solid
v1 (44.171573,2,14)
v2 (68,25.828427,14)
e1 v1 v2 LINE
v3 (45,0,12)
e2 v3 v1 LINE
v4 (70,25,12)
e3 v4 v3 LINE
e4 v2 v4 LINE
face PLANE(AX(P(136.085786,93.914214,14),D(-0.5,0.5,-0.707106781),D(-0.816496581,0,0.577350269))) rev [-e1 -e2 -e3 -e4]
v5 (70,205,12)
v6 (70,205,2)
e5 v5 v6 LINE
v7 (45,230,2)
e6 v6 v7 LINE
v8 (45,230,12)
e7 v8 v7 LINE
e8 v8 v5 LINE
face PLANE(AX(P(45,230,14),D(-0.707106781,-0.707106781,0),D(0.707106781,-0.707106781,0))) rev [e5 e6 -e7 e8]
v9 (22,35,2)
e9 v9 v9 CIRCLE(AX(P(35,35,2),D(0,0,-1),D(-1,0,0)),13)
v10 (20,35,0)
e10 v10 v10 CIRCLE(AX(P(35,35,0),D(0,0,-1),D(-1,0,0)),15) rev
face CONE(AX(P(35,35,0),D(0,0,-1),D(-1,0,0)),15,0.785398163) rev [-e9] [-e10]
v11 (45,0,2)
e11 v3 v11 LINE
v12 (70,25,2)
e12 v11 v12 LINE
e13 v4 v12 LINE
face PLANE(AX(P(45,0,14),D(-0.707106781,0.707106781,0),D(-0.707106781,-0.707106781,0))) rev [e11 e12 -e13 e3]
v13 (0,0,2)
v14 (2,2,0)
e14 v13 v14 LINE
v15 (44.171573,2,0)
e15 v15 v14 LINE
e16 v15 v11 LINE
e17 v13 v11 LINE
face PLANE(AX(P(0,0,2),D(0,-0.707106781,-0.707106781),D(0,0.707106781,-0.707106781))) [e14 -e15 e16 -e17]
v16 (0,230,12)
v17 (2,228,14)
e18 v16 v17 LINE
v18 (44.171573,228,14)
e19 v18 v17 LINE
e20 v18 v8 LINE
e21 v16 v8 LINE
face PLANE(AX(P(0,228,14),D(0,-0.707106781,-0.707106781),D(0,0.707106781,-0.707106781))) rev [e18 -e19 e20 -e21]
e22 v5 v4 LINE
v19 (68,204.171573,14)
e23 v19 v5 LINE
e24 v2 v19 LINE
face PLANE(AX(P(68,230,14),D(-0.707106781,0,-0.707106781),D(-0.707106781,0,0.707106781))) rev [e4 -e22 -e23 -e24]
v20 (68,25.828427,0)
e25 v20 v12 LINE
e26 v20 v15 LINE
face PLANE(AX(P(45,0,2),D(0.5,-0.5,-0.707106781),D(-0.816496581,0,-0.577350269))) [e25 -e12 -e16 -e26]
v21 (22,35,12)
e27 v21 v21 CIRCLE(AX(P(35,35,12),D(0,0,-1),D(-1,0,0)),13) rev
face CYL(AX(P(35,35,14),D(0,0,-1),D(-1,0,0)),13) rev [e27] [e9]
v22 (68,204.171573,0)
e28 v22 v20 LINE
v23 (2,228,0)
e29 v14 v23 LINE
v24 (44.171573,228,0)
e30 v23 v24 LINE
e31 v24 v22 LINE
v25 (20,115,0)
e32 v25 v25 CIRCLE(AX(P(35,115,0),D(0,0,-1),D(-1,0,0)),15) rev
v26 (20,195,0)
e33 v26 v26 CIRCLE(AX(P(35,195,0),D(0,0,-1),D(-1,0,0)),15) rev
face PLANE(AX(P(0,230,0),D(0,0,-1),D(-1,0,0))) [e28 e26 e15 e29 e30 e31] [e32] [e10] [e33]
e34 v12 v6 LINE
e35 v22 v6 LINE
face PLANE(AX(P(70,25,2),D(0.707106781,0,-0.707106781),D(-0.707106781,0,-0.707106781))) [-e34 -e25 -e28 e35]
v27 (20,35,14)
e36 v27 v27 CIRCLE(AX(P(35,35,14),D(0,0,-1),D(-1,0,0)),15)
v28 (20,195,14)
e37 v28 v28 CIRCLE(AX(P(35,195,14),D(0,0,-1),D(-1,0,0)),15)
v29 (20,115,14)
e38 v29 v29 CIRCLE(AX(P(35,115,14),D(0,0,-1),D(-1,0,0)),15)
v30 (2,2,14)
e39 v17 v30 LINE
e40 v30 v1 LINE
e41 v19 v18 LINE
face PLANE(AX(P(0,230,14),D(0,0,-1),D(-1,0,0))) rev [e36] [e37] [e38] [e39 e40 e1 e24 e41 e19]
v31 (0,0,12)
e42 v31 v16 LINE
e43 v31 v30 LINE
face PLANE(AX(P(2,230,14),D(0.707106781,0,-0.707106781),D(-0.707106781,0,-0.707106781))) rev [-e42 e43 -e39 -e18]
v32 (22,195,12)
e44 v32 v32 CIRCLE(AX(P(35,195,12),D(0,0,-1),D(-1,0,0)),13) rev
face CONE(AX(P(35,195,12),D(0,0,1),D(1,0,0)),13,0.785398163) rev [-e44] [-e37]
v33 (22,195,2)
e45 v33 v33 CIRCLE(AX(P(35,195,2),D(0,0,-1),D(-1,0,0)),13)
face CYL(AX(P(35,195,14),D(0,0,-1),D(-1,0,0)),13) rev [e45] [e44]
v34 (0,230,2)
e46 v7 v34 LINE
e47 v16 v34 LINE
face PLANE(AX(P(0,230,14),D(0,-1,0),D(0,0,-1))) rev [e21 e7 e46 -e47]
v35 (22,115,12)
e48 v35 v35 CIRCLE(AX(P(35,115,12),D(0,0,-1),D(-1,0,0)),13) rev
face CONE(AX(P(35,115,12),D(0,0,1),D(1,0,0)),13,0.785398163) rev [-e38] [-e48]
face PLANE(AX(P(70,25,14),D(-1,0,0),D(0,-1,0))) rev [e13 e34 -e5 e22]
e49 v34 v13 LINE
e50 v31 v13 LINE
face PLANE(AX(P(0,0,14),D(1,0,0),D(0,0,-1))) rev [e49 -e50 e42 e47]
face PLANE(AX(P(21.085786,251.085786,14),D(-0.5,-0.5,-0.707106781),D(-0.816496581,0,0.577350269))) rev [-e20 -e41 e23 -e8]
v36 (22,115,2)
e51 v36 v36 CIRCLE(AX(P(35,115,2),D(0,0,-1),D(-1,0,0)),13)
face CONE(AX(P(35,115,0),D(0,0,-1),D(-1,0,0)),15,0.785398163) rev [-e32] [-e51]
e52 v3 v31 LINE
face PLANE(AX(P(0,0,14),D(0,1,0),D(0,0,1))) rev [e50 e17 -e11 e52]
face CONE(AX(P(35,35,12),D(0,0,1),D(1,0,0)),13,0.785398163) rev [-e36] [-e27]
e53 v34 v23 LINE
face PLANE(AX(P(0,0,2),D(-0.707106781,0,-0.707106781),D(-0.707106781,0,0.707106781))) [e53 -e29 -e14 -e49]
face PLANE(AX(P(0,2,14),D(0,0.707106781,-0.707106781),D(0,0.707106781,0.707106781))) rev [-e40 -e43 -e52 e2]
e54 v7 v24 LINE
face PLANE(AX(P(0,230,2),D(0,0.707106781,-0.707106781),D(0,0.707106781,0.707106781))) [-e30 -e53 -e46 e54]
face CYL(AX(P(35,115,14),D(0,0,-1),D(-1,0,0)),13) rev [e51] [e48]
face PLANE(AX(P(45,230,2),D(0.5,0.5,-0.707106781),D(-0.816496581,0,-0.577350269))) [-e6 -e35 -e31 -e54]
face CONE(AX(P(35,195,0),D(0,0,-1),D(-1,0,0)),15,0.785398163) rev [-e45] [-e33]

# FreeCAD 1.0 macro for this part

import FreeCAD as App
import Part
import Sketcher
from FreeCAD import Vector
Q = App.Units.Quantity


def edges_at(feature, points):
    """Names of the edges that pass closest to the given points."""
    edges = feature.Shape.Edges
    near = lambda p: min(range(len(edges)), key=lambda i: edges[i].distToShape(Part.Vertex(*p))[0])
    return sorted({f"Edge{near(p) + 1}" for p in points})

doc = App.newDocument("Part")
body = doc.addObject("PartDesign::Body", "Body")

sketch1 = doc.addObject("Sketcher::SketchObject", "Sketch")
body.addObject(sketch1)
sketch1.AttachmentSupport = (doc.XY_Plane, [""])
sketch1.MapMode = "FlatFace"
sketch1.addGeometry([
    Part.LineSegment(Vector(0, 0, 0), Vector(45, 0, 0)),
    Part.LineSegment(Vector(45, 0, 0), Vector(70, 25, 0)),
    Part.LineSegment(Vector(70, 25, 0), Vector(70, 205, 0)),
    Part.LineSegment(Vector(70, 205, 0), Vector(45, 230, 0)),
    Part.LineSegment(Vector(45, 230, 0), Vector(0, 230, 0)),
    Part.LineSegment(Vector(0, 230, 0), Vector(0, 0, 0)),
    Part.Circle(Vector(35, 35, 0), Vector(0, 0, 1), 13),
    Part.Circle(Vector(35, 115, 0), Vector(0, 0, 1), 13),
    Part.Circle(Vector(35, 195, 0), Vector(0, 0, 1), 13),
], False)
sketch1.addConstraint([
    Sketcher.Constraint("Coincident", 0, 2, 1, 1),
    Sketcher.Constraint("Coincident", 1, 2, 2, 1),
    Sketcher.Constraint("Coincident", 2, 2, 3, 1),
    Sketcher.Constraint("Coincident", 3, 2, 4, 1),
    Sketcher.Constraint("Coincident", 4, 2, 5, 1),
    Sketcher.Constraint("Coincident", 5, 2, 0, 1),
    Sketcher.Constraint("Horizontal", 0),
    Sketcher.Constraint("Vertical", 2),
    Sketcher.Constraint("Horizontal", 4),
    Sketcher.Constraint("Vertical", 5),
    Sketcher.Constraint("Coincident", 5, 2, -1, 1),
    Sketcher.Constraint("Equal", 6, 7),
    Sketcher.Constraint("Equal", 7, 8),
    Sketcher.Constraint("Perpendicular", 1, 3),
    Sketcher.Constraint("Vertical", 6, 3, 7, 3),
    Sketcher.Constraint("Vertical", 7, 3, 8, 3),
    Sketcher.Constraint("Vertical", 0, 2, 3, 2),
    Sketcher.Constraint("Equal", 1, 3),
    Sketcher.Constraint("Diameter", 6, Q("26 mm")),
    Sketcher.Constraint("DistanceX", 0, 1, 0, 2, Q("45 mm")),
    Sketcher.Constraint("DistanceY", 2, 1, 2, 2, Q("180 mm")),
    Sketcher.Constraint("DistanceY", 5, 2, 5, 1, Q("230 mm")),
    Sketcher.Constraint("DistanceX", -1, 1, 6, 3, Q("35 mm")),
    Sketcher.Constraint("DistanceY", -1, 1, 6, 3, Q("35 mm")),
    Sketcher.Constraint("DistanceY", -1, 1, 7, 3, Q("115 mm")),
    Sketcher.Constraint("DistanceY", -1, 1, 8, 3, Q("195 mm")),
])
pad1 = doc.addObject("PartDesign::Pad", "Pad")
body.addObject(pad1)
pad1.Profile = sketch1
pad1.Length = 14
doc.recompute()

chamfer = doc.addObject("PartDesign::Chamfer", "Chamfer")
body.addObject(chamfer)
chamfer.Base = (pad1, edges_at(pad1, [
    (57.5, 12.5, 14),
    (70, 115, 14),
    (57.5, 217.5, 14),
    (22, 35, 0),
    (22, 35, 14),
    (22.5, 230, 14),
    (22, 115, 0),
    (22, 115, 14),
    (22, 195, 0),
    (22, 195, 14),
    (0, 115, 14),
    (22.5, 230, 0),
    (57.5, 217.5, 0),
    (70, 115, 0),
    (22.5, 0, 14),
    (57.5, 12.5, 0),
    (22.5, 0, 0),
    (0, 115, 0),
]))
chamfer.Size = 2

doc.recompute()
